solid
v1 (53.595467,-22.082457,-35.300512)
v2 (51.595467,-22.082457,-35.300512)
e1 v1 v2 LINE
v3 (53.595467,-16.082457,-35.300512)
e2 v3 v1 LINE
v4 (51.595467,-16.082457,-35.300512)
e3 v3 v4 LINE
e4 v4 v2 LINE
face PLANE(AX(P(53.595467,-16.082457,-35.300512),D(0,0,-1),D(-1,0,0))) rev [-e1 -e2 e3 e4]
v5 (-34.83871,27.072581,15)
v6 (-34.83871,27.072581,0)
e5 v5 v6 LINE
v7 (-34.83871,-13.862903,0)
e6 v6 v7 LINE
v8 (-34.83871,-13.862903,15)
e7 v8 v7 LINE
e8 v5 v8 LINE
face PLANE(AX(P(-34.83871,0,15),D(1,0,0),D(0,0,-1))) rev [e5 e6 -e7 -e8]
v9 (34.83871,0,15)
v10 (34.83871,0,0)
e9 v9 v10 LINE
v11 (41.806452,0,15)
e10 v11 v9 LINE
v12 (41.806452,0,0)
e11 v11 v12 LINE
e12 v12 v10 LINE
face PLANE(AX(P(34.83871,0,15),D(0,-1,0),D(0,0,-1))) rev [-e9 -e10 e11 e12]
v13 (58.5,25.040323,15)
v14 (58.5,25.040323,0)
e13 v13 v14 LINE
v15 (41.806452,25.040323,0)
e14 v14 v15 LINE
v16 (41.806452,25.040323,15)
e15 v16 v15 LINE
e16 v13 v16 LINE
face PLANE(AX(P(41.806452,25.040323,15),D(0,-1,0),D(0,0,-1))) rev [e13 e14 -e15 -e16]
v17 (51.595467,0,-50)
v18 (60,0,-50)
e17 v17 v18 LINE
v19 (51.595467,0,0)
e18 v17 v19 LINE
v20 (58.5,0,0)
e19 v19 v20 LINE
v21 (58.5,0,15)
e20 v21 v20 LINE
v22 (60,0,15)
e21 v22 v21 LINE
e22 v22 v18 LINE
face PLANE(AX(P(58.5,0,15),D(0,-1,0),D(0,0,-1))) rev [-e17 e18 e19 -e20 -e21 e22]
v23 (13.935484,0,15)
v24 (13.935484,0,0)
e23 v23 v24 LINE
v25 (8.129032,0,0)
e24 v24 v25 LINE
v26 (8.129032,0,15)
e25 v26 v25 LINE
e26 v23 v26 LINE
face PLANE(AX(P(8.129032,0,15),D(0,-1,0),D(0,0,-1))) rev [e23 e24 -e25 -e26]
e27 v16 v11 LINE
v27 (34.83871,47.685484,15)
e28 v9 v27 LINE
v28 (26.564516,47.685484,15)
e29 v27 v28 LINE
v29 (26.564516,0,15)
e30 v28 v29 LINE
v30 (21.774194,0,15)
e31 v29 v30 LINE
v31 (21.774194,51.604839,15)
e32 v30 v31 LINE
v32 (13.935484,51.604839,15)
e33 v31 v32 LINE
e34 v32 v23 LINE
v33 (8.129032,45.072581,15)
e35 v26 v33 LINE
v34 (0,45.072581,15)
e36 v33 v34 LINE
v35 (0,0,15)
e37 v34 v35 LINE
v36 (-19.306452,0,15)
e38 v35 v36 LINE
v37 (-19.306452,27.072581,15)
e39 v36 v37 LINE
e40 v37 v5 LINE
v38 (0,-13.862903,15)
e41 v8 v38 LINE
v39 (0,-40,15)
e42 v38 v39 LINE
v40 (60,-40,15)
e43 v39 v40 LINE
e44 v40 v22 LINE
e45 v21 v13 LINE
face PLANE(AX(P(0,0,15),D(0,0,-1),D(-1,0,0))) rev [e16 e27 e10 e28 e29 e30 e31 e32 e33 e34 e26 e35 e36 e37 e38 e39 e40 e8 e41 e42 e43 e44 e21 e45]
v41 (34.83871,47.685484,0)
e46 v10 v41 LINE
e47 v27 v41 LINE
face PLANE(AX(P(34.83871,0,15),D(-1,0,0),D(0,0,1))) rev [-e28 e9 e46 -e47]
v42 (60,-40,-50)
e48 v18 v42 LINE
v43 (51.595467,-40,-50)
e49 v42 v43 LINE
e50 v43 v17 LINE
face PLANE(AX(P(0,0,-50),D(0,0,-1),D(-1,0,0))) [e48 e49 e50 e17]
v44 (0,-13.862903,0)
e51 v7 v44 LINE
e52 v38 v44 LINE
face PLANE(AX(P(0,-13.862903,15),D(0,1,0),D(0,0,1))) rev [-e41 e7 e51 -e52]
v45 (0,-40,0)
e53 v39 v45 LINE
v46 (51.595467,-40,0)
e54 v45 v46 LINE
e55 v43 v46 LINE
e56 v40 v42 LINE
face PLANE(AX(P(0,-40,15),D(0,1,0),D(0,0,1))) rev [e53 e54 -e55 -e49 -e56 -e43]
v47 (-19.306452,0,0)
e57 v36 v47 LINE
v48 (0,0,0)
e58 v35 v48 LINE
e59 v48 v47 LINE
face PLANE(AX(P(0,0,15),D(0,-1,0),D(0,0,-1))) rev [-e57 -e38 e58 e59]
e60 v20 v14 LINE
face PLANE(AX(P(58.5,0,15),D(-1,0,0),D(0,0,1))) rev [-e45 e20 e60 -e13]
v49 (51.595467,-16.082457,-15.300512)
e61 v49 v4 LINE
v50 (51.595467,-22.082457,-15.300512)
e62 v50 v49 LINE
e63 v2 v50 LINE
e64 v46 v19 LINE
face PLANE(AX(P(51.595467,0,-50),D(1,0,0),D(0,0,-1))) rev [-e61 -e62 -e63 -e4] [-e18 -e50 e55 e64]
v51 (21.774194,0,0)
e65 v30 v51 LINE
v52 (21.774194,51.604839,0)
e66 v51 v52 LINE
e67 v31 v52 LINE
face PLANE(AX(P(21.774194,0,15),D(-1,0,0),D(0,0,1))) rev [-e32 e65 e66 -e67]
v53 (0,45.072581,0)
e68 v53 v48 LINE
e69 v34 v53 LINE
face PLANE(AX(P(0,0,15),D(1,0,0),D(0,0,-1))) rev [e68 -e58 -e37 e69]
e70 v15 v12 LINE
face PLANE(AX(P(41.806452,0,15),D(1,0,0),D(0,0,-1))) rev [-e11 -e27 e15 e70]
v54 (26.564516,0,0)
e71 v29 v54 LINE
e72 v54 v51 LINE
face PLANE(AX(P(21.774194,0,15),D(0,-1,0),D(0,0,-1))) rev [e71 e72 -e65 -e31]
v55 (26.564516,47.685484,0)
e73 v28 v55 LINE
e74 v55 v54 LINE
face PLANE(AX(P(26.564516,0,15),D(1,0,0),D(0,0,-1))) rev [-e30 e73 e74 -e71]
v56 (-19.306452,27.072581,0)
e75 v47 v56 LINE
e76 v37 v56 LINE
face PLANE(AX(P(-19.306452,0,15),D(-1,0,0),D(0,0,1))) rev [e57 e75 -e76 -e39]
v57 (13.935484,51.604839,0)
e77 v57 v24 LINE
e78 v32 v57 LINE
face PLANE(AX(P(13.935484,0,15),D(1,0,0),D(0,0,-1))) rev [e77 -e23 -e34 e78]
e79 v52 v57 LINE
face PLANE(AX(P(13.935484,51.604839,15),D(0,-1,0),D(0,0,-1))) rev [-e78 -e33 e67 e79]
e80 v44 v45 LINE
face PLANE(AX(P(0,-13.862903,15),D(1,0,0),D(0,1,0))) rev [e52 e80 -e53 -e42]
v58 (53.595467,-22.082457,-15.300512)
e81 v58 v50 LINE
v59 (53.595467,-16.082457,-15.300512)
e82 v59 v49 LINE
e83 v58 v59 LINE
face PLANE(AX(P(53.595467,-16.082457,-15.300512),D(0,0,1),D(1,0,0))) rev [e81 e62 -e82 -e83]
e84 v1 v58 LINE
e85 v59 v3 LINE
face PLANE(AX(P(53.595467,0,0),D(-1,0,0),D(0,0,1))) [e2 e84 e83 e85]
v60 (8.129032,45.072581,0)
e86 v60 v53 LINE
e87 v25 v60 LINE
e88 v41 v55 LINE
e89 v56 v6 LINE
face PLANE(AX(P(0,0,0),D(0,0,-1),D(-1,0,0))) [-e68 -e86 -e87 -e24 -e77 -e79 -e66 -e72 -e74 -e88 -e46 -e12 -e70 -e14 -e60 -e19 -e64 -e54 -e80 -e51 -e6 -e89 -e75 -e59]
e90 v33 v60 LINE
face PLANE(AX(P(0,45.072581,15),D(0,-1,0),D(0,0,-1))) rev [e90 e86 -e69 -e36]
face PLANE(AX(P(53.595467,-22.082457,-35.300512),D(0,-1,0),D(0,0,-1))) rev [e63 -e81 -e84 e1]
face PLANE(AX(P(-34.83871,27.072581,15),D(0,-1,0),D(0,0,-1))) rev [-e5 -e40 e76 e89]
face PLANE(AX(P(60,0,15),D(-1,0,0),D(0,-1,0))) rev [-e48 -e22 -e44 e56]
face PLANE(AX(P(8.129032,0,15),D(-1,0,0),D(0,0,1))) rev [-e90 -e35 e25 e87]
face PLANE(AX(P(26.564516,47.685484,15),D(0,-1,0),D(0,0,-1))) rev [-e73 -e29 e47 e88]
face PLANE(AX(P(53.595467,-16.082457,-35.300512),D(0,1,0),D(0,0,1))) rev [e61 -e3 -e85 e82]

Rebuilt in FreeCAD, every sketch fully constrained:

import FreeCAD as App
import Part
import Sketcher
from FreeCAD import Vector
Q = App.Units.Quantity


def add_polygon(sketch, points):
    """Adds a closed chain of lines whose ends are joined by coincident constraints."""
    first, n = sketch.GeometryCount, len(points)
    for a, b in zip(points, points[1:] + points[:1]):
        sketch.addGeometry(Part.LineSegment(App.Vector(*a, 0), App.Vector(*b, 0)), False)
    for i in range(n):
        sketch.addConstraint(Sketcher.Constraint("Coincident", first + i, 2, first + (i + 1) % n, 1))

doc = App.newDocument("Part")
params = doc.addObject("Spreadsheet::Sheet", "Params")
for row, (alias, value) in enumerate([
    ("sketch1_width", "60 mm"),
    ("sketch1_height", "40 mm"),
    ("sketch1_width2", "1.5 mm"),
    ("pad1_length", "15 mm"),
    ("sketch2_height", "40 mm"),
    ("pad2_length", "50 mm"),
    ("sketch3_width", "6 mm"),
    ("sketch3_height", "20 mm"),
    ("pocket1_length", "2 mm"),
], start=1):
    params.set(f"A{row}", alias)
    params.set(f"B{row}", "=" + value)
    params.setAlias(f"B{row}", alias)

body = doc.addObject("PartDesign::Body", "Body")

# Sketch on XY plane
sketch1 = doc.addObject("Sketcher::SketchObject", "Sketch")
body.addObject(sketch1)
sketch1.AttachmentSupport = (doc.XY_Plane, [""])
sketch1.MapMode = "FlatFace"
add_polygon(sketch1, [(26.6, 0), (21.8, 0), (21.8, 51.6), (13.9, 51.6), (13.9, 0), (8.1, 0), (8.1, 45.1), (0, 45.1), (0, 0), (-19.3, 0), (-19.3, 27.1), (-34.8, 27.1), (-34.8, -13.9), (0, -13.9), (0, -40), (60, -40), (60, 0), (58.5, 0), (58.5, 25), (41.8, 25), (41.8, 0), (34.8, 0), (34.8, 47.7), (26.6, 47.7)])  # lines 0-23
sketch1.addConstraint([
    Sketcher.Constraint("Horizontal", 0),
    Sketcher.Constraint("Vertical", 1),
    Sketcher.Constraint("Horizontal", 2),
    Sketcher.Constraint("Vertical", 3),
    Sketcher.Constraint("Horizontal", 4),
    Sketcher.Constraint("Vertical", 5),
    Sketcher.Constraint("Horizontal", 6),
    Sketcher.Constraint("Vertical", 7),
    Sketcher.Constraint("Horizontal", 8),
    Sketcher.Constraint("Vertical", 9),
    Sketcher.Constraint("Horizontal", 10),
    Sketcher.Constraint("Vertical", 11),
    Sketcher.Constraint("Horizontal", 12),
    Sketcher.Constraint("Vertical", 13),
    Sketcher.Constraint("Horizontal", 14),
    Sketcher.Constraint("Vertical", 15),
    Sketcher.Constraint("Horizontal", 16),
    Sketcher.Constraint("Vertical", 17),
    Sketcher.Constraint("Horizontal", 18),
    Sketcher.Constraint("Vertical", 19),
    Sketcher.Constraint("Horizontal", 20),
    Sketcher.Constraint("Vertical", 21),
    Sketcher.Constraint("Horizontal", 22),
    Sketcher.Constraint("Vertical", 23),
    Sketcher.Constraint("Coincident", 7, 2, -1, 1),
    Sketcher.Constraint("PointOnObject", 0, 2, -1),
    Sketcher.Constraint("PointOnObject", 3, 2, -1),
    Sketcher.Constraint("PointOnObject", 12, 2, -2),
    Sketcher.Constraint("PointOnObject", 15, 2, -1),
    Sketcher.Constraint("PointOnObject", 19, 2, -1),
    Sketcher.Constraint("DistanceX", 14, 1, 14, 2, Q("60 mm")),
    Sketcher.Constraint("DistanceY", 15, 1, 15, 2, Q("40 mm")),
    Sketcher.Constraint("DistanceX", 16, 2, 16, 1, Q("1.5 mm")),
    Sketcher.Constraint("DistanceY", 9, 2, 6, 2, Q("18 mm")),
    Sketcher.Constraint("DistanceX", 2, 2, 2, 1, Q("7.83871 mm")),
    Sketcher.Constraint("DistanceX", 4, 2, 4, 1, Q("5.806452 mm")),
    Sketcher.Constraint("DistanceX", 8, 2, 8, 1, Q("19.306452 mm")),
    Sketcher.Constraint("DistanceX", 10, 2, 10, 1, Q("15.532258 mm")),
    Sketcher.Constraint("DistanceX", 18, 2, 18, 1, Q("16.693548 mm")),
    Sketcher.Constraint("DistanceX", 20, 2, 20, 1, Q("6.967742 mm")),
    Sketcher.Constraint("DistanceY", 1, 1, 1, 2, Q("51.604839 mm")),
    Sketcher.Constraint("DistanceY", 5, 1, 5, 2, Q("45.072581 mm")),
    Sketcher.Constraint("DistanceX", 0, 2, 0, 1, Q("4.790323 mm")),
    Sketcher.Constraint("DistanceX", 6, 2, 6, 1, Q("8.129032 mm")),
    Sketcher.Constraint("DistanceY", 11, 2, 11, 1, Q("40.935484 mm")),
    Sketcher.Constraint("DistanceY", 17, 1, 17, 2, Q("25.040323 mm")),
    Sketcher.Constraint("DistanceY", 21, 1, 21, 2, Q("47.685484 mm")),
])
sketch1.setExpression("Constraints[54]", "Params.sketch1_width")
sketch1.setExpression("Constraints[55]", "Params.sketch1_height")
sketch1.setExpression("Constraints[56]", "Params.sketch1_width2")
pad1 = doc.addObject("PartDesign::Pad", "Pad")
body.addObject(pad1)
pad1.Profile = sketch1
pad1.setExpression("Length", "Params.pad1_length")

# Sketch on XY plane
sketch2 = doc.addObject("Sketcher::SketchObject", "Sketch001")
body.addObject(sketch2)
sketch2.AttachmentSupport = (doc.XY_Plane, [""])
sketch2.MapMode = "FlatFace"
add_polygon(sketch2, [(60, 0), (60, -40), (52, -40), (52, 0)])  # lines 0-3
sketch2.addConstraint([
    Sketcher.Constraint("Vertical", 0),
    Sketcher.Constraint("Horizontal", 1),
    Sketcher.Constraint("Vertical", 2),
    Sketcher.Constraint("Horizontal", 3),
    Sketcher.Constraint("PointOnObject", 2, 2, -1),
    Sketcher.Constraint("DistanceY", 0, 2, 0, 1, Q("40 mm")),
    Sketcher.Constraint("DistanceX", -1, 1, 0, 2, Q("60 mm")),
    Sketcher.Constraint("DistanceX", 1, 2, 1, 1, Q("8.404533 mm")),
])
sketch2.setExpression("Constraints[9]", "Params.sketch2_height")
pad2 = doc.addObject("PartDesign::Pad", "Pad001")
body.addObject(pad2)
pad2.Profile = sketch2
pad2.setExpression("Length", "Params.pad2_length")
pad2.Reversed = True

# Sketch on YZ plane
sketch3 = doc.addObject("Sketcher::SketchObject", "Sketch002")
body.addObject(sketch3)
sketch3.AttachmentSupport = (doc.YZ_Plane, [""])
sketch3.MapMode = "FlatFace"
sketch3.AttachmentOffset = App.Placement(Vector(0, 0, 51.595467), App.Rotation())
add_polygon(sketch3, [(-16, -35), (-22, -35), (-22, -15), (-16, -15)])  # lines 0-3
sketch3.addConstraint([
    Sketcher.Constraint("Horizontal", 0),
    Sketcher.Constraint("Vertical", 1),
    Sketcher.Constraint("Horizontal", 2),
    Sketcher.Constraint("Vertical", 3),
    Sketcher.Constraint("DistanceX", 0, 2, 0, 1, Q("6 mm")),
    Sketcher.Constraint("DistanceY", 1, 1, 1, 2, Q("20 mm")),
    Sketcher.Constraint("DistanceX", 0, 2, -1, 1, Q("22.082457 mm")),
    Sketcher.Constraint("DistanceY", 0, 2, -1, 1, Q("35.300512 mm")),
])
sketch3.setExpression("Constraints[8]", "Params.sketch3_width")
sketch3.setExpression("Constraints[9]", "Params.sketch3_height")
pocket1 = doc.addObject("PartDesign::Pocket", "Pocket")
body.addObject(pocket1)
pocket1.Profile = sketch3
pocket1.setExpression("Length", "Params.pocket1_length")
pocket1.Reversed = True

doc.recompute()
